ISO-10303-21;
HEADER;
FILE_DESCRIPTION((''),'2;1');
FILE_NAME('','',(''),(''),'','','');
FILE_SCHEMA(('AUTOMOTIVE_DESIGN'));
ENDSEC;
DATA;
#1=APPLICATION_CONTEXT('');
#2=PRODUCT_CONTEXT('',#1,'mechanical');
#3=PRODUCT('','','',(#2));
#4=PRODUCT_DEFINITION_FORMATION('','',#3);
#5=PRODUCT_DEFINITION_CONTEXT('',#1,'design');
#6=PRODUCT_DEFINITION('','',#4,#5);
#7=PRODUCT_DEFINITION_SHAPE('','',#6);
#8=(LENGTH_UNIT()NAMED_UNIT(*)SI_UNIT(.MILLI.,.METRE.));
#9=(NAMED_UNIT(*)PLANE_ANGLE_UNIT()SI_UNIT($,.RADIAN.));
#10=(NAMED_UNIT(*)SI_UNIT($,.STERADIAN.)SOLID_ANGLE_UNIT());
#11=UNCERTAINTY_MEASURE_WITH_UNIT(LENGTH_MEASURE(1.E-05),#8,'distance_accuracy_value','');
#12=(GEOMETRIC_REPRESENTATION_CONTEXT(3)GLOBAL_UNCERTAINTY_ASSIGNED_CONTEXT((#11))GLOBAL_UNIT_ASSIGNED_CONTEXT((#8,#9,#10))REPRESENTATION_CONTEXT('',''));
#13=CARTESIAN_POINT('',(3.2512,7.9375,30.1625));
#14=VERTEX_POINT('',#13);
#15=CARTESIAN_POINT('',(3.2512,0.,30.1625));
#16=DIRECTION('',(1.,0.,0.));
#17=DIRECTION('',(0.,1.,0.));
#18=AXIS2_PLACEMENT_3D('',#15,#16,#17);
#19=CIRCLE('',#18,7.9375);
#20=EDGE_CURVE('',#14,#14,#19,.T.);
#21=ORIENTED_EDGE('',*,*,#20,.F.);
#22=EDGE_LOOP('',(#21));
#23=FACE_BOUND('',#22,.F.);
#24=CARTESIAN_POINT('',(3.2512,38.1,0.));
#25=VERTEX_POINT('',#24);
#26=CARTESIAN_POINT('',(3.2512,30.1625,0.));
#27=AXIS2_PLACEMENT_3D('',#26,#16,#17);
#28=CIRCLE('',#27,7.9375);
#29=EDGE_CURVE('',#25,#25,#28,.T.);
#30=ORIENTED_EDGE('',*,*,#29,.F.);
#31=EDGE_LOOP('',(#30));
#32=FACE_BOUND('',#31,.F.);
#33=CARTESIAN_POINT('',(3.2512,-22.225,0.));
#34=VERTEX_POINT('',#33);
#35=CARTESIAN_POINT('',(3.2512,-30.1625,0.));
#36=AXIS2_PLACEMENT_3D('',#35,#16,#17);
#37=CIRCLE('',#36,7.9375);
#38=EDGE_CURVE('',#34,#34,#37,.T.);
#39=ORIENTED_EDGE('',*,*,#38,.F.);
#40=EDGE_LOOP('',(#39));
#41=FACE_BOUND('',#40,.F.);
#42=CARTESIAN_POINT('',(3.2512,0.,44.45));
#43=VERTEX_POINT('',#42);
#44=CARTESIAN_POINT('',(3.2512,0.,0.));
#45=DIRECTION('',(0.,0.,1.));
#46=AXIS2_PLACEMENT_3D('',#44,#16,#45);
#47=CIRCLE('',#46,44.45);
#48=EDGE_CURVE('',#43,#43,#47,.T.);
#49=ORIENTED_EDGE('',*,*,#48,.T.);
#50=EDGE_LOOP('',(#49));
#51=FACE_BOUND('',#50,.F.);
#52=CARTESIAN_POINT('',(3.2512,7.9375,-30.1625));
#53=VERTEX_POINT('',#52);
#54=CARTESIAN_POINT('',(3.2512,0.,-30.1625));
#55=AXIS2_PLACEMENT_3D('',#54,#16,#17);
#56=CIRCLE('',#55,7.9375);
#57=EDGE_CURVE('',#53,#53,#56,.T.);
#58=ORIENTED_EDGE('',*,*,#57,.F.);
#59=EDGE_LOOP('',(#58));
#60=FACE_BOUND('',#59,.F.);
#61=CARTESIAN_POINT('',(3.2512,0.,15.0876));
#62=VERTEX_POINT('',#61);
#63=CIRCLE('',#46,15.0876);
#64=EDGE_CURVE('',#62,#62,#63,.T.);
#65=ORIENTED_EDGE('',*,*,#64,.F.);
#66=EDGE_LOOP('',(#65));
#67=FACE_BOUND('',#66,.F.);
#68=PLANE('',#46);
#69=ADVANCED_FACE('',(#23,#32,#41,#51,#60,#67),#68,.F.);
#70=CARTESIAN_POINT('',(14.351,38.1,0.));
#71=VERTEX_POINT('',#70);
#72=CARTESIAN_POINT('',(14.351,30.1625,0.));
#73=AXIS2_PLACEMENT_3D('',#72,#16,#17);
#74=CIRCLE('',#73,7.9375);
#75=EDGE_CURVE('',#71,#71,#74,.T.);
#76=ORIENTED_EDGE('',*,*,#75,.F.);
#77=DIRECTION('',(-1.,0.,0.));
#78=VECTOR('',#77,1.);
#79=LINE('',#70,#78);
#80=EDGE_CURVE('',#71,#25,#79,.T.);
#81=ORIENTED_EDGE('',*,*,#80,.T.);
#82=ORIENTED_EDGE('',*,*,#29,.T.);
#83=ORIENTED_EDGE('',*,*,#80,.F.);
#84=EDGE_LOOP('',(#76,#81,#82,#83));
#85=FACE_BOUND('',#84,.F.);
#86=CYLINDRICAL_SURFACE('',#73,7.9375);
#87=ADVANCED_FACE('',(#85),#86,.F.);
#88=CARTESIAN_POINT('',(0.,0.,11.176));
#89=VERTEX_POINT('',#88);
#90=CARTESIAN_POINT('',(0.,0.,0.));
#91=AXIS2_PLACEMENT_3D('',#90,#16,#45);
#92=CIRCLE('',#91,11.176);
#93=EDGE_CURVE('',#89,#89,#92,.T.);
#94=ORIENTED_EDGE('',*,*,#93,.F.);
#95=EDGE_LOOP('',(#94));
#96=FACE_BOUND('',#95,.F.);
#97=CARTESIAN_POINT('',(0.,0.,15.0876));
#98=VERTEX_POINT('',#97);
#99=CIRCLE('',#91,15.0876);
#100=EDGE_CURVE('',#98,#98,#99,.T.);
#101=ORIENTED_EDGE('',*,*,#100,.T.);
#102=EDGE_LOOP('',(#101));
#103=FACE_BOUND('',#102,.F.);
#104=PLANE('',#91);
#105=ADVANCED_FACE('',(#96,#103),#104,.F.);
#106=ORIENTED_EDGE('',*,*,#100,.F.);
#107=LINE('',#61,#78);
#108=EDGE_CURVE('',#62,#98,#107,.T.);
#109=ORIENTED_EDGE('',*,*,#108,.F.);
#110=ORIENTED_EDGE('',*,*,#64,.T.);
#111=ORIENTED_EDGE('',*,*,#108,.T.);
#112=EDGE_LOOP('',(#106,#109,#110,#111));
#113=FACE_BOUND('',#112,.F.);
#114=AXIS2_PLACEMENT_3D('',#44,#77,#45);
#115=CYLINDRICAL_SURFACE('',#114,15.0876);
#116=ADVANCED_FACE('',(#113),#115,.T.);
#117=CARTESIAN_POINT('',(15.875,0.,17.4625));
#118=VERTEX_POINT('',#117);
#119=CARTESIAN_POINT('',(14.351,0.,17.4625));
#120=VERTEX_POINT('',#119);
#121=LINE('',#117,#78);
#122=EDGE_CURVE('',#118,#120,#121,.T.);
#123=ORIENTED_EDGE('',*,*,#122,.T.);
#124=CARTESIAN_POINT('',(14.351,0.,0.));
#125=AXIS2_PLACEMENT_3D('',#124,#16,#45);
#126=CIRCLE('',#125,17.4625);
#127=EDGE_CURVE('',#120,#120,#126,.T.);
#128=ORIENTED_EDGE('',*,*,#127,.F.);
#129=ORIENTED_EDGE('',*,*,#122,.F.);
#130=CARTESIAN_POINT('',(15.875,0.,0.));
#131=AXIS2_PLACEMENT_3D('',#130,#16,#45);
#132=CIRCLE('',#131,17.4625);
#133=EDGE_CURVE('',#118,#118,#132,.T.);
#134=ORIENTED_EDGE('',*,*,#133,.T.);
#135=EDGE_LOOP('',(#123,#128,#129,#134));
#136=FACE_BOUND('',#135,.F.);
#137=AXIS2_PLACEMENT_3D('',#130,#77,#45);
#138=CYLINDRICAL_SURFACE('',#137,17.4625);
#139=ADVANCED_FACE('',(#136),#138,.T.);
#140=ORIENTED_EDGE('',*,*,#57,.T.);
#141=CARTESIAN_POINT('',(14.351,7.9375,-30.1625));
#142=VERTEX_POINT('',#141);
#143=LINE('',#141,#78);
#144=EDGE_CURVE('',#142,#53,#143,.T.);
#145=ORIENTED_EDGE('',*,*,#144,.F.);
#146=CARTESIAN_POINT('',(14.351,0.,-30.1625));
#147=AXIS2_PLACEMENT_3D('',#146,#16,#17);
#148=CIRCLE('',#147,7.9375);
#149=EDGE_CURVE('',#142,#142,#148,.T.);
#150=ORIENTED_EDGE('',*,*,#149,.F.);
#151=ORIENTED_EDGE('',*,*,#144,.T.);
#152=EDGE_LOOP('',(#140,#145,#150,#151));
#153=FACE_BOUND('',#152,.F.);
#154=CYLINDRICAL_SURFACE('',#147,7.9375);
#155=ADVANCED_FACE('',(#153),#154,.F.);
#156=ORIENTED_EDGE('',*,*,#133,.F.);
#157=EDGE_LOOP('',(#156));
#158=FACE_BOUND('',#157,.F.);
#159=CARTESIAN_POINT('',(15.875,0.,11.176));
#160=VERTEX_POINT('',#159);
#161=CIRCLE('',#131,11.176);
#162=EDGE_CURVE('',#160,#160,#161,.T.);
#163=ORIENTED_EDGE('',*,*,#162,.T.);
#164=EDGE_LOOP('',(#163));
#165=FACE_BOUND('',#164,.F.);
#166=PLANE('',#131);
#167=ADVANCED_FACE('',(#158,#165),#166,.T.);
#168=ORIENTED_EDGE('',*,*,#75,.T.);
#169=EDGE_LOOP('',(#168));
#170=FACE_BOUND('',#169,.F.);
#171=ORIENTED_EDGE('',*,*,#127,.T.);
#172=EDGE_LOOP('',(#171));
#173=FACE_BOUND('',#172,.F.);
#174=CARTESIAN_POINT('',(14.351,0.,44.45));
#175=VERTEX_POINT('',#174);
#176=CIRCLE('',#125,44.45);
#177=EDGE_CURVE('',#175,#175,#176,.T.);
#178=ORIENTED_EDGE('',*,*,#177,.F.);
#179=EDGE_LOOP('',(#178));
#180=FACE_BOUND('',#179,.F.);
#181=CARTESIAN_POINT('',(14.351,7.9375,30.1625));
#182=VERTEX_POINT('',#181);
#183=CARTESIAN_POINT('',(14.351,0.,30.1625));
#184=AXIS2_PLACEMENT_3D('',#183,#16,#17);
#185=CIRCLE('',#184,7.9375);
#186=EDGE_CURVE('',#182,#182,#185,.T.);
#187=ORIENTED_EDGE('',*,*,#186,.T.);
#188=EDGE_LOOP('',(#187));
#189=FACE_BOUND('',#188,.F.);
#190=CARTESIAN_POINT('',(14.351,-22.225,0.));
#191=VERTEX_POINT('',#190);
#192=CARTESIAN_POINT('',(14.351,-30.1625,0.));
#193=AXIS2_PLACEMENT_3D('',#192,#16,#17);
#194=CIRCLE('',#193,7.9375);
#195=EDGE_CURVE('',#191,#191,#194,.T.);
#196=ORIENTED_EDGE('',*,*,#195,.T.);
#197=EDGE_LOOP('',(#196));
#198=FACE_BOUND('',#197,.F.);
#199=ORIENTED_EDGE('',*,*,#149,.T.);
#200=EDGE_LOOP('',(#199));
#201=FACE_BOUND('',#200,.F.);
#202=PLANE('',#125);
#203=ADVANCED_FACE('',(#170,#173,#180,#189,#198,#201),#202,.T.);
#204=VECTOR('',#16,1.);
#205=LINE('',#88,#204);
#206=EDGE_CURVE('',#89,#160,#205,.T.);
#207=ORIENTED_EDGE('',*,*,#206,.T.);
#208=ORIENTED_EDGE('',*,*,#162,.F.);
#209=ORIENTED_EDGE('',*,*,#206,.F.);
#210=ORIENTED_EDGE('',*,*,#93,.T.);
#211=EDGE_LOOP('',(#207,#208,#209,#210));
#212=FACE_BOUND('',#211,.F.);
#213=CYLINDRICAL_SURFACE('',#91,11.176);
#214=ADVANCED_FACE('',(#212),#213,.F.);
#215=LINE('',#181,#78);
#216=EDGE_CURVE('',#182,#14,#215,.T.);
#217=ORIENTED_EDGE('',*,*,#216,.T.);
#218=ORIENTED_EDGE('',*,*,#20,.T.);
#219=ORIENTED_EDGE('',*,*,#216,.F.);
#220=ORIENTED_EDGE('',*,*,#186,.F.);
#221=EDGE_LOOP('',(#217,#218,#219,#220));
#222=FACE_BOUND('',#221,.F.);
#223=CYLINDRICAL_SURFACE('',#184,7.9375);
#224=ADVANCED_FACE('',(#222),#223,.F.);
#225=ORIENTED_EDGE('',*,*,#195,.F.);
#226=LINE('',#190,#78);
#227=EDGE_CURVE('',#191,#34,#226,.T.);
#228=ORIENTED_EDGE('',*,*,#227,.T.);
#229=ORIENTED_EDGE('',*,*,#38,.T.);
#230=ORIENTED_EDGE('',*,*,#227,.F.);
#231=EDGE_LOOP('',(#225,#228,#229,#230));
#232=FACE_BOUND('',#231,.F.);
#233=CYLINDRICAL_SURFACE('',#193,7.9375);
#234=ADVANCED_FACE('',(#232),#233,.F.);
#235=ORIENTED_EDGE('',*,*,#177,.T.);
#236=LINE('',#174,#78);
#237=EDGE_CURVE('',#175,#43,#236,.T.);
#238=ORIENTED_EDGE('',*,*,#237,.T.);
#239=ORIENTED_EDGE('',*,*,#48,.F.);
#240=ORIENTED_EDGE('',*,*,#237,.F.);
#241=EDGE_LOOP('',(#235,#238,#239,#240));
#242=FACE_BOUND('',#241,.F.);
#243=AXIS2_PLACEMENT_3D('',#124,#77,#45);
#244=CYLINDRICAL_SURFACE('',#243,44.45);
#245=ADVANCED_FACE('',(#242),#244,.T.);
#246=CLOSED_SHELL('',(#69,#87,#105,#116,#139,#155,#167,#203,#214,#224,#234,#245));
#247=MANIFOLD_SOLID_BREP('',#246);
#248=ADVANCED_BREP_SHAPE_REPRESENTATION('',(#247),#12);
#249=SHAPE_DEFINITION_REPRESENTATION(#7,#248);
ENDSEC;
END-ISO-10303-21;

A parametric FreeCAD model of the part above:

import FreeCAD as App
import Part
import Sketcher

V = App.Vector
Q = App.Units.Quantity


def add_polygon(sketch, points):
    """Adds a closed chain of lines whose ends are joined by coincident constraints."""
    first, n = sketch.GeometryCount, len(points)
    for a, b in zip(points, points[1:] + points[:1]):
        sketch.addGeometry(Part.LineSegment(App.Vector(*a, 0), App.Vector(*b, 0)), False)
    for i in range(n):
        sketch.addConstraint(Sketcher.Constraint("Coincident", first + i, 2, first + (i + 1) % n, 1))

doc = App.newDocument("Part")
body = doc.addObject("PartDesign::Body", "Body")

# Sketch on XZ plane
sketch1 = body.newObject("Sketcher::SketchObject", "Sketch")
sketch1.AttachmentSupport = (doc.getObject("XZ_Plane"), [""])
sketch1.MapMode = "FlatFace"
add_polygon(sketch1, [(0, 15.1), (0, 11.2), (15.9, 11.2), (15.9, 17.5), (14.4, 17.5), (14.4, 44.5), (3.3, 44.5), (3.3, 15.1)])  # lines 0-7
sketch1.addConstraint([
    Sketcher.Constraint("Vertical", 0),
    Sketcher.Constraint("Horizontal", 1),
    Sketcher.Constraint("Vertical", 2),
    Sketcher.Constraint("Horizontal", 3),
    Sketcher.Constraint("Vertical", 4),
    Sketcher.Constraint("Horizontal", 5),
    Sketcher.Constraint("Vertical", 6),
    Sketcher.Constraint("Horizontal", 7),
    Sketcher.Constraint("PointOnObject", 0, 2, -2),
    Sketcher.Constraint("DistanceX", 3, 2, 3, 1, Q("0.06 in")),
    Sketcher.Constraint("DistanceX", 1, 1, 1, 2, Q("0.625 in")),
    Sketcher.Constraint("DistanceX", 5, 2, 5, 1, Q("0.437 in")),
    Sketcher.Constraint("DistanceY", 0, 2, 0, 1, Q("0.154 in")),
    Sketcher.Constraint("DistanceY", 4, 1, 4, 2, Q("1.0625 in")),
    Sketcher.Constraint("DistanceY", 6, 2, 6, 1, Q("1.156 in")),
    Sketcher.Constraint("DistanceY", -1, 1, 0, 2, Q("0.44 in")),
])
revolution = body.newObject("PartDesign::Revolution", "Revolution")
revolution.Profile = sketch1
revolution.ReferenceAxis = (sketch1, ["H_Axis"])
revolution.Angle = 360

# Sketch on YZ plane
sketch2 = body.newObject("Sketcher::SketchObject", "Sketch001")
sketch2.AttachmentSupport = (doc.getObject("YZ_Plane"), [""])
sketch2.MapMode = "FlatFace"
sketch2.AttachmentOffset = App.Placement(V(0, 0, 0.565 * 25.4), App.Rotation())
sketch2.addGeometry([
    Part.Circle(V(0, 30, 0), V(0, 0, 1), 8),
    Part.Circle(V(30, 0, 0), V(0, 0, 1), 8),
    Part.Circle(V(-30, 0, 0), V(0, 0, 1), 8),
    Part.Circle(V(0, -30, 0), V(0, 0, 1), 8),
], False)
sketch2.addConstraint([
    Sketcher.Constraint("Equal", 0, 1),
    Sketcher.Constraint("Equal", 1, 2),
    Sketcher.Constraint("Equal", 2, 3),
    Sketcher.Constraint("Symmetric", 1, 3, 2, 3, -1, 1),
    Sketcher.Constraint("Symmetric", 0, 3, 3, 3, -1, 1),
    Sketcher.Constraint("PointOnObject", 0, 3, -2),
    Sketcher.Constraint("PointOnObject", 1, 3, -1),
    Sketcher.Constraint("Diameter", 0, Q("0.625 in")),
    Sketcher.Constraint("DistanceY", -1, 1, 0, 3, Q("1.1875 in")),
    Sketcher.Constraint("DistanceX", -1, 1, 1, 3, Q("1.1875 in")),
])
pocket1 = body.newObject("PartDesign::Pocket", "Pocket")
pocket1.Profile = sketch2
pocket1.Length = Q("1 in")

doc.recompute()
